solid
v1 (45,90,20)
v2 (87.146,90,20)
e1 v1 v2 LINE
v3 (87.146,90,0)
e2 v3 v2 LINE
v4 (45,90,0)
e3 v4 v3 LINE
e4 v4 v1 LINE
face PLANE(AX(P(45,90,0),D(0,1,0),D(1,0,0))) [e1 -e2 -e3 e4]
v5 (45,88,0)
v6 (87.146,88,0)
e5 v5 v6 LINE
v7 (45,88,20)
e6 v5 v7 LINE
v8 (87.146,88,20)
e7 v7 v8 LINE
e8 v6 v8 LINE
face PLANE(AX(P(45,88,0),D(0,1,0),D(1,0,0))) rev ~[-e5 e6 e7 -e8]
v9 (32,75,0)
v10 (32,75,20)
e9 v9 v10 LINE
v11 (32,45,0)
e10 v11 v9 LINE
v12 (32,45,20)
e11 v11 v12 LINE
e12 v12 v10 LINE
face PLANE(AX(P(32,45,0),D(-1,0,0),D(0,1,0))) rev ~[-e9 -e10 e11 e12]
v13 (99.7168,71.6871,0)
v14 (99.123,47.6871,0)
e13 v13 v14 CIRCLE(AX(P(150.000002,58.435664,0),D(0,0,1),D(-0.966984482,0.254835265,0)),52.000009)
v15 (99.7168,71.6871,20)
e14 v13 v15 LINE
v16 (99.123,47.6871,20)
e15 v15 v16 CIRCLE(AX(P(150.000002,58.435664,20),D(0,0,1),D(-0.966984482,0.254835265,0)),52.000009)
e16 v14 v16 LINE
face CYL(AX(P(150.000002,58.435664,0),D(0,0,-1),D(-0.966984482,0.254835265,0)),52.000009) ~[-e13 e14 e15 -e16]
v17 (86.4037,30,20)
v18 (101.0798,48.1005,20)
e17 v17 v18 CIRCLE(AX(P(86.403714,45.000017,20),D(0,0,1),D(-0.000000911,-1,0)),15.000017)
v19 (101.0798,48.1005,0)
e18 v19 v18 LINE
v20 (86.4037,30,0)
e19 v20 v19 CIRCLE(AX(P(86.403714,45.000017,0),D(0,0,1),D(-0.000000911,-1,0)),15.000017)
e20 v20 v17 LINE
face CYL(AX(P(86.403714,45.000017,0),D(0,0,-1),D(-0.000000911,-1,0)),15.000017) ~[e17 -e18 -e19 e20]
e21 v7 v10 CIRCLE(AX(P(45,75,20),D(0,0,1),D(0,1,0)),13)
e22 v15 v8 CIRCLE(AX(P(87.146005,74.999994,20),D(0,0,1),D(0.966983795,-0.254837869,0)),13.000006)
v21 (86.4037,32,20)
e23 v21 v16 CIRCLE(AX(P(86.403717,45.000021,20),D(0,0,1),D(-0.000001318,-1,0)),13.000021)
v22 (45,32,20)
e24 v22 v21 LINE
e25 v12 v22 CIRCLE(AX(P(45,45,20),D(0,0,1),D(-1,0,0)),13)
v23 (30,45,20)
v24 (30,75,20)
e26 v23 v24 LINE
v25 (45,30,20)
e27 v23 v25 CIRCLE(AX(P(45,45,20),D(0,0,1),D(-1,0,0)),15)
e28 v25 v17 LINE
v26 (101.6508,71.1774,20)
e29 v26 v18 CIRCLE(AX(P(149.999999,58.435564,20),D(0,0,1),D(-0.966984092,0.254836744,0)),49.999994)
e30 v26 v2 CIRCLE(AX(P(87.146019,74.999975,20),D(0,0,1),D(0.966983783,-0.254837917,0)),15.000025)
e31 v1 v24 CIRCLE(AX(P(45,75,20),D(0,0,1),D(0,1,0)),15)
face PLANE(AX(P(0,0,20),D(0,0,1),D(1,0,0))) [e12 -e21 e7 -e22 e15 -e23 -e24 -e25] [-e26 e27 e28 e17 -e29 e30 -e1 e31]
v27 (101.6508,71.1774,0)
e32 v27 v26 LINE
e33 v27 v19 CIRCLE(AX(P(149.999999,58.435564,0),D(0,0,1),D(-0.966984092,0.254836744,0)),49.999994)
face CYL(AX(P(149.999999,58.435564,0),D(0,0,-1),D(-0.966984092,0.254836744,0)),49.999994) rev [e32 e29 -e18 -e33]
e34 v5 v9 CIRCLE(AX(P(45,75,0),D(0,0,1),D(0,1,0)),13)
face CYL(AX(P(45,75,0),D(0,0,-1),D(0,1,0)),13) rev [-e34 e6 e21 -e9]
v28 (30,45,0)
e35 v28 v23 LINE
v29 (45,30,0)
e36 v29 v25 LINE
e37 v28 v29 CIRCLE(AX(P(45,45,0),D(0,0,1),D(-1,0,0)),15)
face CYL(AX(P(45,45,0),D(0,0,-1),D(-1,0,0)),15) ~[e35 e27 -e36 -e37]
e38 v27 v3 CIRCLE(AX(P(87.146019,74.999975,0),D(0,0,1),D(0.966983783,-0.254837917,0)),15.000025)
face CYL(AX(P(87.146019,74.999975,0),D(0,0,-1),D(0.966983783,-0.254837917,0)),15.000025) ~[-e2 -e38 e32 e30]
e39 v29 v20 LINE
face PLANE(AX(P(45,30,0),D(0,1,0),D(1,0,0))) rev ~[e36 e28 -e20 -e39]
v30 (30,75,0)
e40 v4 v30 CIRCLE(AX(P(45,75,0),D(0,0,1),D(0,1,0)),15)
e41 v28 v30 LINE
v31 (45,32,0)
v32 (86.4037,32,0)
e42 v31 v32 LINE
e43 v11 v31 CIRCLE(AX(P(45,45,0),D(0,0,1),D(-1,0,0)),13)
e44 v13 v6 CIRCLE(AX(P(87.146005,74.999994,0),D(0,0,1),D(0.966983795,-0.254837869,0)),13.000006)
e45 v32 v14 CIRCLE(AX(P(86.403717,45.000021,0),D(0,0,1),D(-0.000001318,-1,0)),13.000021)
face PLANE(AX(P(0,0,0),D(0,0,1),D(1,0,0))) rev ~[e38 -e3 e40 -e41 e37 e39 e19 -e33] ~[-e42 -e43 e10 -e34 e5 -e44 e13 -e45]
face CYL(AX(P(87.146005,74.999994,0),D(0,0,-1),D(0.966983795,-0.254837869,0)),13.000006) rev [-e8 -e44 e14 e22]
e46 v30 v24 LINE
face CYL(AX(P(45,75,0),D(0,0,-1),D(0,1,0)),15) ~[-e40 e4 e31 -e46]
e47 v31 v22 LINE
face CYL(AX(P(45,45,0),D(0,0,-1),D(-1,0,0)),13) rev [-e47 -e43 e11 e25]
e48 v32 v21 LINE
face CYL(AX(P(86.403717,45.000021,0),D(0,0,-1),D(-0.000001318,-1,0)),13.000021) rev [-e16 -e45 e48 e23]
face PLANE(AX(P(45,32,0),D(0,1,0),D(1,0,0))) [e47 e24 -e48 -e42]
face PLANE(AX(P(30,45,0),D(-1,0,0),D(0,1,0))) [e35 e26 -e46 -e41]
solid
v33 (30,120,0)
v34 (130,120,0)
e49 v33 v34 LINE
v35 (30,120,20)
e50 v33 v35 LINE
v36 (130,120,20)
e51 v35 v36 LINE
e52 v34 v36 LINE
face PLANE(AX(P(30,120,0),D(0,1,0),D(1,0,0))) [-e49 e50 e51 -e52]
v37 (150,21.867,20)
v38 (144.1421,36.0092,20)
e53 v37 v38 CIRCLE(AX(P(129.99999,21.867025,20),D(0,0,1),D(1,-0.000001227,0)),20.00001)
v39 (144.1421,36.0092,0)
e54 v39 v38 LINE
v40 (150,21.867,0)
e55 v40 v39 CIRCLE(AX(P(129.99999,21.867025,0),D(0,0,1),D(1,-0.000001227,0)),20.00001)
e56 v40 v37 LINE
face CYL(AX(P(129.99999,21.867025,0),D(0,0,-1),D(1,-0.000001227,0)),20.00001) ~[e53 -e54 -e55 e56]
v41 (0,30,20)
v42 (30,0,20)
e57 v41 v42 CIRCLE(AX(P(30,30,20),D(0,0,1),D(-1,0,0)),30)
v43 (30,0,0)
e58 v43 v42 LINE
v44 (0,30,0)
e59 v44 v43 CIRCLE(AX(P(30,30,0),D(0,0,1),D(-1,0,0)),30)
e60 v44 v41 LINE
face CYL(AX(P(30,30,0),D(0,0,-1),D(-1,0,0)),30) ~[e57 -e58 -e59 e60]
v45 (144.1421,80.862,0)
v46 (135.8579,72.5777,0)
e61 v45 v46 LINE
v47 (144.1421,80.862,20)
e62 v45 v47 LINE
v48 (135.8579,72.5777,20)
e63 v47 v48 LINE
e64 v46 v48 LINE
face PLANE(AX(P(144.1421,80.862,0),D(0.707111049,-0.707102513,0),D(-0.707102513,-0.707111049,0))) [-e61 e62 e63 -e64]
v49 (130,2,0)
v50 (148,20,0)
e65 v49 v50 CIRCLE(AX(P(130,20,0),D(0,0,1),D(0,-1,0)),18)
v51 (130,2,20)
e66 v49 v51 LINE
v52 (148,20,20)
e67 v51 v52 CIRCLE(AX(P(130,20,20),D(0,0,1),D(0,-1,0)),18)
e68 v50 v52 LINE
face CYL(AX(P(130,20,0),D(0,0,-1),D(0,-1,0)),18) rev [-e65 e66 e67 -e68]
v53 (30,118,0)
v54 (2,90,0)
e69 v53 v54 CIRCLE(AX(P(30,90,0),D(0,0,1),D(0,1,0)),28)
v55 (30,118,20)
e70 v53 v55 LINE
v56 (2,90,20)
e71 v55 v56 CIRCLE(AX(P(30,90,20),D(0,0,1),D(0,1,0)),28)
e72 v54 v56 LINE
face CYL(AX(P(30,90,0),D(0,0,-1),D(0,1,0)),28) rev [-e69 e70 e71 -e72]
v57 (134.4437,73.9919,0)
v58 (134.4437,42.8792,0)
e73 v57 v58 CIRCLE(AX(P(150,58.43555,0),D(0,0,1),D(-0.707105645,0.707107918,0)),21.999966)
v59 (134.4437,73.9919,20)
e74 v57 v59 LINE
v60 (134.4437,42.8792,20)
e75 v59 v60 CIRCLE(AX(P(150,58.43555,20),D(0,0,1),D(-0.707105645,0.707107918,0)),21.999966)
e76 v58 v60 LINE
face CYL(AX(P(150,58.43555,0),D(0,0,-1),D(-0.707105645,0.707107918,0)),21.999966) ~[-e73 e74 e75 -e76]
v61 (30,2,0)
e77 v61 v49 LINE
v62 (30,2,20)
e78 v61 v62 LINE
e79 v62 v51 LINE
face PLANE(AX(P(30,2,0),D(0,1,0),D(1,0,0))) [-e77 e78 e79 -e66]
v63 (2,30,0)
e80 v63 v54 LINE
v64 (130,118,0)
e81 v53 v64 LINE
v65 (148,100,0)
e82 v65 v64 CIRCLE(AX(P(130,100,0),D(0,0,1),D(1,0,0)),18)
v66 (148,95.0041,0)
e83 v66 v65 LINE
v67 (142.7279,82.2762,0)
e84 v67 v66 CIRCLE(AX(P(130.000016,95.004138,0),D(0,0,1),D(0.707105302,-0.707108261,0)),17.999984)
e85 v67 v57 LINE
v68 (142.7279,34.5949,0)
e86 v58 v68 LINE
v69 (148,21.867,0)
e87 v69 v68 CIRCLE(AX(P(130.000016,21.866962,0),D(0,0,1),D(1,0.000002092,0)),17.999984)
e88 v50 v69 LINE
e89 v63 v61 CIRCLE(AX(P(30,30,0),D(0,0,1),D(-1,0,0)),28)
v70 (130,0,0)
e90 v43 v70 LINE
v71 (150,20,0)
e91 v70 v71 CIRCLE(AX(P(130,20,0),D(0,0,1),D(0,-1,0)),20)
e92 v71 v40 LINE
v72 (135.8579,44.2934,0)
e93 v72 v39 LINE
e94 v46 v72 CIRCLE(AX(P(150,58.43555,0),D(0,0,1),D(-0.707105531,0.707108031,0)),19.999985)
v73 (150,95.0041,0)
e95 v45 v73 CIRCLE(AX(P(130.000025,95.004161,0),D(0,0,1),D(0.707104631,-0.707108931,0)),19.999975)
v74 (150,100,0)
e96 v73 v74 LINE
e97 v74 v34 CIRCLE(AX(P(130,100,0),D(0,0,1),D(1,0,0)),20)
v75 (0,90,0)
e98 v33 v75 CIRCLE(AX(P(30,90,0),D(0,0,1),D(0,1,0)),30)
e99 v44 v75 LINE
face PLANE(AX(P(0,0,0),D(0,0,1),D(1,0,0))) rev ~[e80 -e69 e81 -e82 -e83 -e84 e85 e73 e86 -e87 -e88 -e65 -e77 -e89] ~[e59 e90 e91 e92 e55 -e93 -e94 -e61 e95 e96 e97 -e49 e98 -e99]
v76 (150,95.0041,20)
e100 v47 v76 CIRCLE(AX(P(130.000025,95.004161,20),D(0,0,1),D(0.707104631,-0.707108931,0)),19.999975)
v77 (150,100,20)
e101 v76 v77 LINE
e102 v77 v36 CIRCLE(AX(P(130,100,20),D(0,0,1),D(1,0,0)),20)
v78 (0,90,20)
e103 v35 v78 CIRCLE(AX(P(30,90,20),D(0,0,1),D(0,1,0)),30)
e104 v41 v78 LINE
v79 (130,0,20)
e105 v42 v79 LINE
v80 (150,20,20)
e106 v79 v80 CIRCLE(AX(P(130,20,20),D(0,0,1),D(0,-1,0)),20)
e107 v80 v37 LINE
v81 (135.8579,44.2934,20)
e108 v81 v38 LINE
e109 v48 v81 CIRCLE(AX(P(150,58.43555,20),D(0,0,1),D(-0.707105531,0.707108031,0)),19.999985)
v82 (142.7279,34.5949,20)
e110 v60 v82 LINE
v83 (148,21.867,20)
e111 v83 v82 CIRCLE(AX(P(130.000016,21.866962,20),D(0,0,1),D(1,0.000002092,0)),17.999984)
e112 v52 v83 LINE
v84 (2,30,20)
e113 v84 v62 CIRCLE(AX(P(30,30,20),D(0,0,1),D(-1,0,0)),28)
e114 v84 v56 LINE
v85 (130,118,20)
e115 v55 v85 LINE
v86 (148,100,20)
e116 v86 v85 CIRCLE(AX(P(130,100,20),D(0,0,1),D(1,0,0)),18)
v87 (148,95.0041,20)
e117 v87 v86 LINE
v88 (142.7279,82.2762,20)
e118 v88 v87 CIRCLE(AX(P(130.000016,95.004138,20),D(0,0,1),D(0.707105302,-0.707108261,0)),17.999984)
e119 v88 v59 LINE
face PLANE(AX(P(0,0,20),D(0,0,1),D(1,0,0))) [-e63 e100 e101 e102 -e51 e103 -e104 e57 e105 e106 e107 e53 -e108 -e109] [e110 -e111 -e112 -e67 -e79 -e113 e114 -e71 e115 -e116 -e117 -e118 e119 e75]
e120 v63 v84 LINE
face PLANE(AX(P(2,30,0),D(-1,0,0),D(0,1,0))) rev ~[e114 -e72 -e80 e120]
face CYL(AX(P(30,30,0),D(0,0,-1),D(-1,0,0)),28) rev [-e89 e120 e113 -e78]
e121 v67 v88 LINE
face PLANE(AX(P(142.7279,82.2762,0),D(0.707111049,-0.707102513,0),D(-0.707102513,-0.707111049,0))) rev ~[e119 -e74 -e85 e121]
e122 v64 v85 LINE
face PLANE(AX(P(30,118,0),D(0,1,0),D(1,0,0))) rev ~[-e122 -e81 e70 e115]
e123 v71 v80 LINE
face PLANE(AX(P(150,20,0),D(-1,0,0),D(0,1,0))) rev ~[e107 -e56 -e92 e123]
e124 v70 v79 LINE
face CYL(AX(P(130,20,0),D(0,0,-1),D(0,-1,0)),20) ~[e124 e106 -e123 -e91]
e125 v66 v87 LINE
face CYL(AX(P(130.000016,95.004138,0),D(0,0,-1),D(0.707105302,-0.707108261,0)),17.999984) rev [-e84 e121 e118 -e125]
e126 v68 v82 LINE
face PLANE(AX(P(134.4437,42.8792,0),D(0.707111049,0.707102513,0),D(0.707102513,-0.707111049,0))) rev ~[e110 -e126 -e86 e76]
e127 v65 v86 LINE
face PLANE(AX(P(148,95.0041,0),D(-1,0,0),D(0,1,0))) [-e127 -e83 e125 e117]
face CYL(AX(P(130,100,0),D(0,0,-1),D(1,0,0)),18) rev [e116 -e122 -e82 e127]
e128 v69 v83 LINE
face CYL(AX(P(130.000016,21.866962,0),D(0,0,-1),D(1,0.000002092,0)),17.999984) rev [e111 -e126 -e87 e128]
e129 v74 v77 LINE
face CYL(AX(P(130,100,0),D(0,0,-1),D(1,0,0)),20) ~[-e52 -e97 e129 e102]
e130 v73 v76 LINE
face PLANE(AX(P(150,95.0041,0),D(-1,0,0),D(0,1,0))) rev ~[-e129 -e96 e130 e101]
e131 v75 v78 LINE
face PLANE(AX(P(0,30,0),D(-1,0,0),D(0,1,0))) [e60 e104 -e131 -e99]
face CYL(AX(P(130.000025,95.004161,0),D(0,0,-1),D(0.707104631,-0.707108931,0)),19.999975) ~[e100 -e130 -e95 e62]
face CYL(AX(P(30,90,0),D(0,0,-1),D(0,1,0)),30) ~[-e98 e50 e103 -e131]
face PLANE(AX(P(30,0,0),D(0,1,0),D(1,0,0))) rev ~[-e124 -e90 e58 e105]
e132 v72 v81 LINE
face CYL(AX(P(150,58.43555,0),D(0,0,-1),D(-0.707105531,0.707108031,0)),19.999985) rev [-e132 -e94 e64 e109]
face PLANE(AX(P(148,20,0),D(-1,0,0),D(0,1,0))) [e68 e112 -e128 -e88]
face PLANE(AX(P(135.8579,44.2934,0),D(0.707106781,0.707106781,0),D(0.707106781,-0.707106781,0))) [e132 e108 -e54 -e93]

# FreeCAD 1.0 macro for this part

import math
import FreeCAD as App
import Part
import Sketcher
from FreeCAD import Vector
Q = App.Units.Quantity

doc = App.newDocument("Part")
body = doc.addObject("PartDesign::Body", "Body")
body.AllowCompound = True

# Sketch on XY plane
sketch1 = body.newObject("Sketcher::SketchObject", "Sketch")
sketch1.AttachmentSupport = (doc.getObject("XY_Plane"), [""])
sketch1.MapMode = "FlatFace"
sketch1.addGeometry([
    Part.LineSegment(Vector(0, 90, 0), Vector(0, 30, 0)),  # 0
    Part.ArcOfCircle(Part.Circle(Vector(30, 30, 0), Vector(0, 0, 1), 30), math.radians(180), math.radians(270)),  # 1
    Part.LineSegment(Vector(30, 0, 0), Vector(130, 0, 0)),  # 2
    Part.ArcOfCircle(Part.Circle(Vector(130, 20, 0), Vector(0, 0, 1), 20), math.radians(-90), math.radians(0)),  # 3
    Part.LineSegment(Vector(150, 20, 0), Vector(150, 21.867, 0)),  # 4
    Part.ArcOfCircle(Part.Circle(Vector(130, 21.867, 0), Vector(0, 0, 1), 20), math.radians(0), math.radians(45.000203)),  # 5
    Part.LineSegment(Vector(144.1421, 36.0092, 0), Vector(135.8579, 44.2934, 0)),  # 6
    Part.ArcOfCircle(Part.Circle(Vector(150, 58.4356, 0), Vector(0, 0, 1), 19.99995), math.radians(135), math.radians(225.000203)),  # 7
    Part.LineSegment(Vector(135.8579, 72.5777, 0), Vector(144.1421, 80.862, 0)),  # 8
    Part.ArcOfCircle(Part.Circle(Vector(130, 95.0041, 0), Vector(0, 0, 1), 19.99995), math.radians(-45), math.radians(0)),  # 9
    Part.LineSegment(Vector(150, 95.0041, 0), Vector(150, 100, 0)),  # 10
    Part.ArcOfCircle(Part.Circle(Vector(130, 100, 0), Vector(0, 0, 1), 20), math.radians(0), math.radians(90)),  # 11
    Part.LineSegment(Vector(130, 120, 0), Vector(30, 120, 0)),  # 12
    Part.ArcOfCircle(Part.Circle(Vector(30, 90, 0), Vector(0, 0, 1), 30), math.radians(90), math.radians(180)),  # 13
    Part.ArcOfCircle(Part.Circle(Vector(130, 100, 0), Vector(0, 0, 1), 18), math.radians(0), math.radians(90)),  # 14
    Part.LineSegment(Vector(148, 100, 0), Vector(148, 95.0041, 0)),  # 15
    Part.ArcOfCircle(Part.Circle(Vector(130, 95.0041, 0), Vector(0, 0, 1), 17.999969), math.radians(-45), math.radians(0)),  # 16
    Part.LineSegment(Vector(142.7279, 82.2762, 0), Vector(134.4437, 73.9919, 0)),  # 17
    Part.ArcOfCircle(Part.Circle(Vector(150, 58.4356, 0), Vector(0, 0, 1), 21.99993), math.radians(135), math.radians(225.000184)),  # 18
    Part.LineSegment(Vector(134.4437, 42.8792, 0), Vector(142.7279, 34.5949, 0)),  # 19
    Part.ArcOfCircle(Part.Circle(Vector(130, 21.867, 0), Vector(0, 0, 1), 18), math.radians(0), math.radians(45)),  # 20
    Part.LineSegment(Vector(148, 21.867, 0), Vector(148, 20, 0)),  # 21
    Part.ArcOfCircle(Part.Circle(Vector(130, 20, 0), Vector(0, 0, 1), 18), math.radians(-90), math.radians(0)),  # 22
    Part.LineSegment(Vector(130, 2, 0), Vector(30, 2, 0)),  # 23
    Part.ArcOfCircle(Part.Circle(Vector(30, 30, 0), Vector(0, 0, 1), 28), math.radians(180), math.radians(270)),  # 24
    Part.LineSegment(Vector(2, 30, 0), Vector(2, 90, 0)),  # 25
    Part.ArcOfCircle(Part.Circle(Vector(30, 90, 0), Vector(0, 0, 1), 28), math.radians(90), math.radians(180)),  # 26
    Part.LineSegment(Vector(30, 118, 0), Vector(130, 118, 0)),  # 27
    Part.LineSegment(Vector(30, 75, 0), Vector(30, 45, 0)),  # 28
    Part.ArcOfCircle(Part.Circle(Vector(45, 45, 0), Vector(0, 0, 1), 15), math.radians(180), math.radians(270)),  # 29
    Part.LineSegment(Vector(45, 30, 0), Vector(86.4037, 30, 0)),  # 30
    Part.ArcOfCircle(Part.Circle(Vector(86.4037, 45, 0), Vector(0, 0, 1), 15), math.radians(-90), math.radians(11.929006)),  # 31
    Part.ArcOfCircle(Part.Circle(Vector(150, 58.4356, 0), Vector(0, 0, 1), 49.999986), math.radians(165.236128), math.radians(191.92915)),  # 32
    Part.ArcOfCircle(Part.Circle(Vector(87.146, 75, 0), Vector(0, 0, 1), 15.00005), math.radians(-14.764054), math.radians(90)),  # 33
    Part.LineSegment(Vector(87.146, 90, 0), Vector(45, 90, 0)),  # 34
    Part.ArcOfCircle(Part.Circle(Vector(45, 75, 0), Vector(0, 0, 1), 15), math.radians(90), math.radians(180)),  # 35
    Part.ArcOfCircle(Part.Circle(Vector(87.146, 75, 0), Vector(0, 0, 1), 13.000012), math.radians(-14.763999), math.radians(90)),  # 36
    Part.ArcOfCircle(Part.Circle(Vector(150, 58.4356, 0), Vector(0, 0, 1), 52.000024), math.radians(165.236107), math.radians(191.929148)),  # 37
    Part.ArcOfCircle(Part.Circle(Vector(86.4037, 45, 0), Vector(0, 0, 1), 13), math.radians(-90), math.radians(11.928994)),  # 38
    Part.LineSegment(Vector(86.4037, 32, 0), Vector(45, 32, 0)),  # 39
    Part.ArcOfCircle(Part.Circle(Vector(45, 45, 0), Vector(0, 0, 1), 13), math.radians(180), math.radians(270)),  # 40
    Part.LineSegment(Vector(32, 45, 0), Vector(32, 75, 0)),  # 41
    Part.ArcOfCircle(Part.Circle(Vector(45, 75, 0), Vector(0, 0, 1), 13), math.radians(90), math.radians(180)),  # 42
    Part.LineSegment(Vector(45, 88, 0), Vector(87.146, 88, 0)),  # 43
], False)
sketch1.addConstraint([
    Sketcher.Constraint("Tangent", 0, 2, 1, 1),
    Sketcher.Constraint("Tangent", 1, 2, 2, 1),
    Sketcher.Constraint("Tangent", 2, 2, 3, 1),
    Sketcher.Constraint("Tangent", 3, 2, 4, 1),
    Sketcher.Constraint("Tangent", 4, 2, 5, 1),
    Sketcher.Constraint("Tangent", 5, 2, 6, 1),
    Sketcher.Constraint("Tangent", 6, 2, 7, 2),
    Sketcher.Constraint("Tangent", 7, 1, 8, 1),
    Sketcher.Constraint("Tangent", 8, 2, 9, 1),
    Sketcher.Constraint("Tangent", 9, 2, 10, 1),
    Sketcher.Constraint("Tangent", 10, 2, 11, 1),
    Sketcher.Constraint("Tangent", 11, 2, 12, 1),
    Sketcher.Constraint("Tangent", 12, 2, 13, 1),
    Sketcher.Constraint("Tangent", 13, 2, 0, 1),
    Sketcher.Constraint("Tangent", 14, 1, 15, 1),
    Sketcher.Constraint("Tangent", 15, 2, 16, 2),
    Sketcher.Constraint("Tangent", 16, 1, 17, 1),
    Sketcher.Constraint("Tangent", 17, 2, 18, 1),
    Sketcher.Constraint("Tangent", 18, 2, 19, 1),
    Sketcher.Constraint("Tangent", 19, 2, 20, 2),
    Sketcher.Constraint("Tangent", 20, 1, 21, 1),
    Sketcher.Constraint("Tangent", 21, 2, 22, 2),
    Sketcher.Constraint("Tangent", 22, 1, 23, 1),
    Sketcher.Constraint("Tangent", 23, 2, 24, 2),
    Sketcher.Constraint("Tangent", 24, 1, 25, 1),
    Sketcher.Constraint("Tangent", 25, 2, 26, 2),
    Sketcher.Constraint("Tangent", 26, 1, 27, 1),
    Sketcher.Constraint("Tangent", 27, 2, 14, 2),
    Sketcher.Constraint("Tangent", 28, 2, 29, 1),
    Sketcher.Constraint("Tangent", 29, 2, 30, 1),
    Sketcher.Constraint("Tangent", 30, 2, 31, 1),
    Sketcher.Constraint("Tangent", 31, 2, 32, 2),
    Sketcher.Constraint("Tangent", 32, 1, 33, 1),
    Sketcher.Constraint("Tangent", 33, 2, 34, 1),
    Sketcher.Constraint("Tangent", 34, 2, 35, 1),
    Sketcher.Constraint("Tangent", 35, 2, 28, 1),
    Sketcher.Constraint("Tangent", 36, 1, 37, 1),
    Sketcher.Constraint("Tangent", 37, 2, 38, 2),
    Sketcher.Constraint("Tangent", 38, 1, 39, 1),
    Sketcher.Constraint("Tangent", 39, 2, 40, 2),
    Sketcher.Constraint("Tangent", 40, 1, 41, 1),
    Sketcher.Constraint("Tangent", 41, 2, 42, 2),
    Sketcher.Constraint("Tangent", 42, 1, 43, 1),
    Sketcher.Constraint("Tangent", 43, 2, 36, 2),
    Sketcher.Constraint("Vertical", 0),
    Sketcher.Constraint("Horizontal", 2),
    Sketcher.Constraint("Vertical", 4),
    Sketcher.Constraint("Vertical", 10),
    Sketcher.Constraint("Horizontal", 12),
    Sketcher.Constraint("Vertical", 15),
    Sketcher.Constraint("Vertical", 21),
    Sketcher.Constraint("Horizontal", 23),
    Sketcher.Constraint("Vertical", 25),
    Sketcher.Constraint("Horizontal", 27),
    Sketcher.Constraint("Vertical", 28),
    Sketcher.Constraint("Horizontal", 30),
    Sketcher.Constraint("Horizontal", 34),
    Sketcher.Constraint("Horizontal", 39),
    Sketcher.Constraint("Vertical", 41),
    Sketcher.Constraint("Horizontal", 43),
    Sketcher.Constraint("Coincident", 14, 3, 11, 3),
    Sketcher.Constraint("Coincident", 16, 3, 9, 3),
    Sketcher.Constraint("Coincident", 18, 3, 7, 3),
    Sketcher.Constraint("Coincident", 20, 3, 5, 3),
    Sketcher.Constraint("Coincident", 22, 3, 3, 3),
    Sketcher.Constraint("Coincident", 24, 3, 1, 3),
    Sketcher.Constraint("Coincident", 26, 3, 13, 3),
    Sketcher.Constraint("Coincident", 32, 3, 7, 3),
    Sketcher.Constraint("Coincident", 36, 3, 33, 3),
    Sketcher.Constraint("Coincident", 37, 3, 7, 3),
    Sketcher.Constraint("Coincident", 38, 3, 31, 3),
    Sketcher.Constraint("Coincident", 40, 3, 29, 3),
    Sketcher.Constraint("Equal", 3, 5),
    Sketcher.Constraint("Equal", 5, 7),
    Sketcher.Constraint("Equal", 7, 9),
    Sketcher.Constraint("Equal", 9, 11),
    Sketcher.Constraint("Equal", 1, 13),
    Sketcher.Constraint("Equal", 29, 31),
    Sketcher.Constraint("Equal", 31, 33),
    Sketcher.Constraint("Equal", 33, 35),
    Sketcher.Constraint("Equal", 40, 42),
    Sketcher.Constraint("PointOnObject", 0, 2, -2),
    Sketcher.Constraint("PointOnObject", 1, 2, -1),
    Sketcher.Constraint("Perpendicular", 6, 8),
    Sketcher.Constraint("Parallel", 8, 17),
    Sketcher.Constraint("Horizontal", 24, 1, 29, 2),
    Sketcher.Constraint("Horizontal", 25, 2, 33, 2),
    Sketcher.Constraint("Vertical", 5, 3, 9, 3),
    Sketcher.Constraint("Vertical", 37, 3, 3, 2),
    Sketcher.Constraint("Vertical", 6, 2, 7, 1),
    Sketcher.Constraint("Vertical", 26, 1, 28, 2),
    Sketcher.Constraint("Radius", 1, Q("30 mm")),
    Sketcher.Constraint("Radius", 3, Q("20 mm")),
    Sketcher.Constraint("Radius", 29, Q("15 mm")),
    Sketcher.Constraint("DistanceY", 28, 2, 28, 1, Q("30 mm")),
    Sketcher.Constraint("DistanceX", -1, 1, 7, 3, Q("150 mm")),
    Sketcher.Constraint("DistanceY", -1, 1, 22, 1, Q("2 mm")),
    Sketcher.Constraint("Radius", 32, Q("50 mm")),
    Sketcher.Constraint("Radius", 36, Q("13 mm")),
    Sketcher.Constraint("DistanceX", 34, 2, 34, 1, Q("42.146 mm")),
])
pad1 = body.newObject("PartDesign::Pad", "Pad")
pad1.Profile = sketch1
pad1.Length = 20

doc.recompute()
